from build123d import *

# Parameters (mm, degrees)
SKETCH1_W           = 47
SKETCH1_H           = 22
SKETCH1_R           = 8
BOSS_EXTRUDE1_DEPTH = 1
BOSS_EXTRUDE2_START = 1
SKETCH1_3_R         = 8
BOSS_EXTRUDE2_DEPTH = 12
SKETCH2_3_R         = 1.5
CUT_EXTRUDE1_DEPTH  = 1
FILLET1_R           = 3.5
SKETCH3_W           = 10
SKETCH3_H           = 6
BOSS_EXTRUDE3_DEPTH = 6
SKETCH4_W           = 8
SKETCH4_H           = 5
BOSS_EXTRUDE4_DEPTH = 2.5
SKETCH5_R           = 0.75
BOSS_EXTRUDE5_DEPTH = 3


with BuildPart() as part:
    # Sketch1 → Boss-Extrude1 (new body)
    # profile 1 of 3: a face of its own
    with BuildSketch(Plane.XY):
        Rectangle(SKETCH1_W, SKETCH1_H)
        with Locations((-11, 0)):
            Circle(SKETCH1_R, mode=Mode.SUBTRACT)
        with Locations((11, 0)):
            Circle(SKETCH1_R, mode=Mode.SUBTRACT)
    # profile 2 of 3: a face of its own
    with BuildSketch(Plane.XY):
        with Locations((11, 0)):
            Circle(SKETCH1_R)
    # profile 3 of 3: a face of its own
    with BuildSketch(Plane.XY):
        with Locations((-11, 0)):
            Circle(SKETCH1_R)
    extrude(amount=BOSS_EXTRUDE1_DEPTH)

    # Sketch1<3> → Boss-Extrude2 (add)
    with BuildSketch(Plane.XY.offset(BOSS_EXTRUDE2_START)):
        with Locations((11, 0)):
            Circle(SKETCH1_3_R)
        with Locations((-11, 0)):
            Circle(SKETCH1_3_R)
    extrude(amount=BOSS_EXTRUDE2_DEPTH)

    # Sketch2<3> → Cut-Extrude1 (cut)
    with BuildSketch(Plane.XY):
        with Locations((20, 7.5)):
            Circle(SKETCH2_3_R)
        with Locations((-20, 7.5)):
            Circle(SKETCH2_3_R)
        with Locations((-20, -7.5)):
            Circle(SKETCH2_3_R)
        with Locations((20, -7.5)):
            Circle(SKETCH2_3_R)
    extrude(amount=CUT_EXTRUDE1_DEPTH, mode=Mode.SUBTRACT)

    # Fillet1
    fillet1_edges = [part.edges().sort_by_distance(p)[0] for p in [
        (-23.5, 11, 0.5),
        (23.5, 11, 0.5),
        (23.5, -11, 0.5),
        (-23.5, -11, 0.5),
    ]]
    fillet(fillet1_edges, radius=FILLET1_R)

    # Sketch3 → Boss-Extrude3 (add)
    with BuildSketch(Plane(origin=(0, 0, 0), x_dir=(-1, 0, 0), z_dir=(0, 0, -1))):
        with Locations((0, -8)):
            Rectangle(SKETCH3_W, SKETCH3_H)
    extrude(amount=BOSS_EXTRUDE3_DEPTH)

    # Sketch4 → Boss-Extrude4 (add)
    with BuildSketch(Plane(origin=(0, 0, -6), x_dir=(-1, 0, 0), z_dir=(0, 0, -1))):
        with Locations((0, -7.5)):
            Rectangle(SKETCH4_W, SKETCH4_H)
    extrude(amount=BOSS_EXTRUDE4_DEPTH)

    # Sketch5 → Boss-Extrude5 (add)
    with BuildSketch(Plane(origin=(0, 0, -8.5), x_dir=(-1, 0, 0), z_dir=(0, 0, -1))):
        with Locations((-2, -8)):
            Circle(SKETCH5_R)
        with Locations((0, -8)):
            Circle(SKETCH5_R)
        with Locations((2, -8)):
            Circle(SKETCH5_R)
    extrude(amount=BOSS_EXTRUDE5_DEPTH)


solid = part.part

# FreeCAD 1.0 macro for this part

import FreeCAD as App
import Part
import Sketcher

V = App.Vector
Q = App.Units.Quantity


def edges_at(feature, points):
    """Names of the edges that pass closest to the given points."""
    edges = feature.Shape.Edges
    near = lambda p: min(range(len(edges)), key=lambda i: edges[i].distToShape(Part.Vertex(*p))[0])
    return sorted({f"Edge{near(p) + 1}" for p in points})

doc = App.newDocument("Part")
params = doc.addObject("Spreadsheet::Sheet", "Params")
for row, (alias, value) in enumerate([
    ("sketch1_width", "47 mm"),
    ("sketch1_height", "22 mm"),
    ("pad1_length", "1 mm"),
    ("sketch2_diameter", "16 mm"),
    ("pad2_length", "12 mm"),
    ("sketch3_diameter", "3 mm"),
    ("pocket1_length", "1 mm"),
    ("fillet_radius", "3.5 mm"),
    ("sketch4_width", "10 mm"),
    ("sketch4_height", "6 mm"),
    ("pad3_length", "6 mm"),
    ("sketch5_width", "8 mm"),
    ("sketch5_height", "5 mm"),
    ("pad4_length", "2.5 mm"),
    ("sketch6_diameter", "1.5 mm"),
    ("pad5_length", "3 mm"),
], start=1):
    params.set(f"A{row}", alias)
    params.set(f"B{row}", "=" + value)
    params.setAlias(f"B{row}", alias)

body = doc.addObject("PartDesign::Body", "Body")

# Sketch on XY plane
sketch1 = doc.addObject("Sketcher::SketchObject", "Sketch")
body.addObject(sketch1)
sketch1.AttachmentSupport = (doc.XY_Plane, [""])
sketch1.MapMode = "FlatFace"
sketch1.addGeometry(Part.LineSegment(V(-24, 11, 0), V(-24, -11, 0)), False)
sketch1.addGeometry(Part.LineSegment(V(-24, -11, 0), V(24, -11, 0)), False)
sketch1.addGeometry(Part.LineSegment(V(24, -11, 0), V(24, 11, 0)), False)
sketch1.addGeometry(Part.LineSegment(V(24, 11, 0), V(-24, 11, 0)), False)
sketch1.addConstraint(Sketcher.Constraint("Coincident", 0, 2, 1, 1))
sketch1.addConstraint(Sketcher.Constraint("Coincident", 1, 2, 2, 1))
sketch1.addConstraint(Sketcher.Constraint("Coincident", 2, 2, 3, 1))
sketch1.addConstraint(Sketcher.Constraint("Coincident", 3, 2, 0, 1))
sketch1.addConstraint(Sketcher.Constraint("Vertical", 0))
sketch1.addConstraint(Sketcher.Constraint("Horizontal", 1))
sketch1.addConstraint(Sketcher.Constraint("Vertical", 2))
sketch1.addConstraint(Sketcher.Constraint("Horizontal", 3))
sketch1.addConstraint(Sketcher.Constraint("Symmetric", 0, 2, 2, 2, -1, 1))
sketch1.addConstraint(Sketcher.Constraint("DistanceX", 1, 1, 1, 2, Q("47 mm")))
sketch1.addConstraint(Sketcher.Constraint("DistanceY", 0, 2, 0, 1, Q("22 mm")))
sketch1.setExpression("Constraints[9]", "Params.sketch1_width")
sketch1.setExpression("Constraints[10]", "Params.sketch1_height")
pad1 = doc.addObject("PartDesign::Pad", "Pad")
body.addObject(pad1)
pad1.Profile = sketch1
pad1.setExpression("Length", "Params.pad1_length")

# Sketch on XY plane
sketch2 = doc.addObject("Sketcher::SketchObject", "Sketch001")
body.addObject(sketch2)
sketch2.AttachmentSupport = (doc.XY_Plane, [""])
sketch2.MapMode = "FlatFace"
sketch2.AttachmentOffset = App.Placement(V(0, 0, 1), App.Rotation())
sketch2.addGeometry(Part.Circle(V(11, 0, 0), V(0, 0, 1), 8), False)
sketch2.addGeometry(Part.Circle(V(-11, 0, 0), V(0, 0, 1), 8), False)
sketch2.addConstraint(Sketcher.Constraint("Equal", 0, 1))
sketch2.addConstraint(Sketcher.Constraint("Symmetric", 0, 3, 1, 3, -1, 1))
sketch2.addConstraint(Sketcher.Constraint("PointOnObject", 0, 3, -1))
sketch2.addConstraint(Sketcher.Constraint("Diameter", 0, Q("16 mm")))
sketch2.addConstraint(Sketcher.Constraint("DistanceX", -1, 1, 0, 3, Q("11 mm")))
sketch2.setExpression("Constraints[3]", "Params.sketch2_diameter")
pad2 = doc.addObject("PartDesign::Pad", "Pad001")
body.addObject(pad2)
pad2.Profile = sketch2
pad2.setExpression("Length", "Params.pad2_length")

# Sketch on XY plane
sketch3 = doc.addObject("Sketcher::SketchObject", "Sketch002")
body.addObject(sketch3)
sketch3.AttachmentSupport = (doc.XY_Plane, [""])
sketch3.MapMode = "FlatFace"
sketch3.addGeometry(Part.Circle(V(20, 7.5, 0), V(0, 0, 1), 1.5), False)
sketch3.addGeometry(Part.Circle(V(-20, 7.5, 0), V(0, 0, 1), 1.5), False)
sketch3.addGeometry(Part.Circle(V(-20, -7.5, 0), V(0, 0, 1), 1.5), False)
sketch3.addGeometry(Part.Circle(V(20, -7.5, 0), V(0, 0, 1), 1.5), False)
sketch3.addConstraint(Sketcher.Constraint("Equal", 0, 1))
sketch3.addConstraint(Sketcher.Constraint("Equal", 1, 2))
sketch3.addConstraint(Sketcher.Constraint("Equal", 2, 3))
sketch3.addConstraint(Sketcher.Constraint("Symmetric", 0, 3, 2, 3, -1, 1))
sketch3.addConstraint(Sketcher.Constraint("Symmetric", 1, 3, 3, 3, -1, 1))
sketch3.addConstraint(Sketcher.Constraint("Symmetric", 0, 3, 1, 3, -2))
sketch3.addConstraint(Sketcher.Constraint("Diameter", 0, Q("3 mm")))
sketch3.addConstraint(Sketcher.Constraint("DistanceX", -1, 1, 0, 3, Q("20 mm")))
sketch3.addConstraint(Sketcher.Constraint("DistanceY", 2, 3, 1, 3, Q("15 mm")))
sketch3.setExpression("Constraints[6]", "Params.sketch3_diameter")
pocket1 = doc.addObject("PartDesign::Pocket", "Pocket")
body.addObject(pocket1)
pocket1.Profile = sketch3
pocket1.setExpression("Length", "Params.pocket1_length")
pocket1.Reversed = True
doc.recompute()

fillet = doc.addObject("PartDesign::Fillet", "Fillet")
body.addObject(fillet)
fillet.Base = (pocket1, edges_at(pocket1, [
    (-23.5, 11, 0.5),
    (23.5, 11, 0.5),
    (23.5, -11, 0.5),
    (-23.5, -11, 0.5),
]))
fillet.setExpression("Radius", "Params.fillet_radius")

# Sketch on XY plane
sketch4 = doc.addObject("Sketcher::SketchObject", "Sketch003")
body.addObject(sketch4)
sketch4.AttachmentSupport = (doc.XY_Plane, [""])
sketch4.MapMode = "FlatFace"
sketch4.addGeometry(Part.LineSegment(V(5, -5, 0), V(5, -11, 0)), False)
sketch4.addGeometry(Part.LineSegment(V(5, -11, 0), V(-5, -11, 0)), False)
sketch4.addGeometry(Part.LineSegment(V(-5, -11, 0), V(-5, -5, 0)), False)
sketch4.addGeometry(Part.LineSegment(V(-5, -5, 0), V(5, -5, 0)), False)
sketch4.addConstraint(Sketcher.Constraint("Coincident", 0, 2, 1, 1))
sketch4.addConstraint(Sketcher.Constraint("Coincident", 1, 2, 2, 1))
sketch4.addConstraint(Sketcher.Constraint("Coincident", 2, 2, 3, 1))
sketch4.addConstraint(Sketcher.Constraint("Coincident", 3, 2, 0, 1))
sketch4.addConstraint(Sketcher.Constraint("Vertical", 0))
sketch4.addConstraint(Sketcher.Constraint("Horizontal", 1))
sketch4.addConstraint(Sketcher.Constraint("Vertical", 2))
sketch4.addConstraint(Sketcher.Constraint("Horizontal", 3))
sketch4.addConstraint(Sketcher.Constraint("DistanceX", 1, 2, 1, 1, Q("10 mm")))
sketch4.addConstraint(Sketcher.Constraint("DistanceY", 0, 2, 0, 1, Q("6 mm")))
sketch4.addConstraint(Sketcher.Constraint("DistanceX", -1, 1, 0, 2, Q("5 mm")))
sketch4.addConstraint(Sketcher.Constraint("DistanceY", 0, 2, -1, 1, Q("11 mm")))
sketch4.setExpression("Constraints[8]", "Params.sketch4_width")
sketch4.setExpression("Constraints[9]", "Params.sketch4_height")
pad3 = doc.addObject("PartDesign::Pad", "Pad002")
body.addObject(pad3)
pad3.Profile = sketch4
pad3.setExpression("Length", "Params.pad3_length")
pad3.Reversed = True

# Sketch on XY plane
sketch5 = doc.addObject("Sketcher::SketchObject", "Sketch004")
body.addObject(sketch5)
sketch5.AttachmentSupport = (doc.XY_Plane, [""])
sketch5.MapMode = "FlatFace"
sketch5.AttachmentOffset = App.Placement(V(0, 0, -6), App.Rotation())
sketch5.addGeometry(Part.LineSegment(V(4, -5, 0), V(4, -10, 0)), False)
sketch5.addGeometry(Part.LineSegment(V(4, -10, 0), V(-4, -10, 0)), False)
sketch5.addGeometry(Part.LineSegment(V(-4, -10, 0), V(-4, -5, 0)), False)
sketch5.addGeometry(Part.LineSegment(V(-4, -5, 0), V(4, -5, 0)), False)
sketch5.addConstraint(Sketcher.Constraint("Coincident", 0, 2, 1, 1))
sketch5.addConstraint(Sketcher.Constraint("Coincident", 1, 2, 2, 1))
sketch5.addConstraint(Sketcher.Constraint("Coincident", 2, 2, 3, 1))
sketch5.addConstraint(Sketcher.Constraint("Coincident", 3, 2, 0, 1))
sketch5.addConstraint(Sketcher.Constraint("Vertical", 0))
sketch5.addConstraint(Sketcher.Constraint("Horizontal", 1))
sketch5.addConstraint(Sketcher.Constraint("Vertical", 2))
sketch5.addConstraint(Sketcher.Constraint("Horizontal", 3))
sketch5.addConstraint(Sketcher.Constraint("DistanceX", 1, 2, 1, 1, Q("8 mm")))
sketch5.addConstraint(Sketcher.Constraint("DistanceY", 0, 2, 0, 1, Q("5 mm")))
sketch5.addConstraint(Sketcher.Constraint("DistanceX", -1, 1, 0, 2, Q("4 mm")))
sketch5.addConstraint(Sketcher.Constraint("DistanceY", 0, 2, -1, 1, Q("10 mm")))
sketch5.setExpression("Constraints[8]", "Params.sketch5_width")
sketch5.setExpression("Constraints[9]", "Params.sketch5_height")
pad4 = doc.addObject("PartDesign::Pad", "Pad003")
body.addObject(pad4)
pad4.Profile = sketch5
pad4.setExpression("Length", "Params.pad4_length")
pad4.Reversed = True

# Sketch on XY plane
sketch6 = doc.addObject("Sketcher::SketchObject", "Sketch005")
body.addObject(sketch6)
sketch6.AttachmentSupport = (doc.XY_Plane, [""])
sketch6.MapMode = "FlatFace"
sketch6.AttachmentOffset = App.Placement(V(0, 0, -8.5), App.Rotation())
sketch6.addGeometry(Part.Circle(V(2, -8, 0), V(0, 0, 1), 0.8), False)
sketch6.addGeometry(Part.Circle(V(0, -8, 0), V(0, 0, 1), 0.8), False)
sketch6.addGeometry(Part.Circle(V(-2, -8, 0), V(0, 0, 1), 0.8), False)
sketch6.addConstraint(Sketcher.Constraint("Equal", 0, 1))
sketch6.addConstraint(Sketcher.Constraint("Equal", 1, 2))
sketch6.addConstraint(Sketcher.Constraint("Symmetric", 0, 3, 2, 3, -2))
sketch6.addConstraint(Sketcher.Constraint("PointOnObject", 1, 3, -2))
sketch6.addConstraint(Sketcher.Constraint("Horizontal", 0, 3, 1, 3))
sketch6.addConstraint(Sketcher.Constraint("Diameter", 0, Q("1.5 mm")))
sketch6.addConstraint(Sketcher.Constraint("DistanceX", -1, 1, 0, 3, Q("2 mm")))
sketch6.addConstraint(Sketcher.Constraint("DistanceY", 0, 3, -1, 1, Q("8 mm")))
sketch6.setExpression("Constraints[5]", "Params.sketch6_diameter")
pad5 = doc.addObject("PartDesign::Pad", "Pad004")
body.addObject(pad5)
pad5.Profile = sketch6
pad5.setExpression("Length", "Params.pad5_length")
pad5.Reversed = True

doc.recompute()
